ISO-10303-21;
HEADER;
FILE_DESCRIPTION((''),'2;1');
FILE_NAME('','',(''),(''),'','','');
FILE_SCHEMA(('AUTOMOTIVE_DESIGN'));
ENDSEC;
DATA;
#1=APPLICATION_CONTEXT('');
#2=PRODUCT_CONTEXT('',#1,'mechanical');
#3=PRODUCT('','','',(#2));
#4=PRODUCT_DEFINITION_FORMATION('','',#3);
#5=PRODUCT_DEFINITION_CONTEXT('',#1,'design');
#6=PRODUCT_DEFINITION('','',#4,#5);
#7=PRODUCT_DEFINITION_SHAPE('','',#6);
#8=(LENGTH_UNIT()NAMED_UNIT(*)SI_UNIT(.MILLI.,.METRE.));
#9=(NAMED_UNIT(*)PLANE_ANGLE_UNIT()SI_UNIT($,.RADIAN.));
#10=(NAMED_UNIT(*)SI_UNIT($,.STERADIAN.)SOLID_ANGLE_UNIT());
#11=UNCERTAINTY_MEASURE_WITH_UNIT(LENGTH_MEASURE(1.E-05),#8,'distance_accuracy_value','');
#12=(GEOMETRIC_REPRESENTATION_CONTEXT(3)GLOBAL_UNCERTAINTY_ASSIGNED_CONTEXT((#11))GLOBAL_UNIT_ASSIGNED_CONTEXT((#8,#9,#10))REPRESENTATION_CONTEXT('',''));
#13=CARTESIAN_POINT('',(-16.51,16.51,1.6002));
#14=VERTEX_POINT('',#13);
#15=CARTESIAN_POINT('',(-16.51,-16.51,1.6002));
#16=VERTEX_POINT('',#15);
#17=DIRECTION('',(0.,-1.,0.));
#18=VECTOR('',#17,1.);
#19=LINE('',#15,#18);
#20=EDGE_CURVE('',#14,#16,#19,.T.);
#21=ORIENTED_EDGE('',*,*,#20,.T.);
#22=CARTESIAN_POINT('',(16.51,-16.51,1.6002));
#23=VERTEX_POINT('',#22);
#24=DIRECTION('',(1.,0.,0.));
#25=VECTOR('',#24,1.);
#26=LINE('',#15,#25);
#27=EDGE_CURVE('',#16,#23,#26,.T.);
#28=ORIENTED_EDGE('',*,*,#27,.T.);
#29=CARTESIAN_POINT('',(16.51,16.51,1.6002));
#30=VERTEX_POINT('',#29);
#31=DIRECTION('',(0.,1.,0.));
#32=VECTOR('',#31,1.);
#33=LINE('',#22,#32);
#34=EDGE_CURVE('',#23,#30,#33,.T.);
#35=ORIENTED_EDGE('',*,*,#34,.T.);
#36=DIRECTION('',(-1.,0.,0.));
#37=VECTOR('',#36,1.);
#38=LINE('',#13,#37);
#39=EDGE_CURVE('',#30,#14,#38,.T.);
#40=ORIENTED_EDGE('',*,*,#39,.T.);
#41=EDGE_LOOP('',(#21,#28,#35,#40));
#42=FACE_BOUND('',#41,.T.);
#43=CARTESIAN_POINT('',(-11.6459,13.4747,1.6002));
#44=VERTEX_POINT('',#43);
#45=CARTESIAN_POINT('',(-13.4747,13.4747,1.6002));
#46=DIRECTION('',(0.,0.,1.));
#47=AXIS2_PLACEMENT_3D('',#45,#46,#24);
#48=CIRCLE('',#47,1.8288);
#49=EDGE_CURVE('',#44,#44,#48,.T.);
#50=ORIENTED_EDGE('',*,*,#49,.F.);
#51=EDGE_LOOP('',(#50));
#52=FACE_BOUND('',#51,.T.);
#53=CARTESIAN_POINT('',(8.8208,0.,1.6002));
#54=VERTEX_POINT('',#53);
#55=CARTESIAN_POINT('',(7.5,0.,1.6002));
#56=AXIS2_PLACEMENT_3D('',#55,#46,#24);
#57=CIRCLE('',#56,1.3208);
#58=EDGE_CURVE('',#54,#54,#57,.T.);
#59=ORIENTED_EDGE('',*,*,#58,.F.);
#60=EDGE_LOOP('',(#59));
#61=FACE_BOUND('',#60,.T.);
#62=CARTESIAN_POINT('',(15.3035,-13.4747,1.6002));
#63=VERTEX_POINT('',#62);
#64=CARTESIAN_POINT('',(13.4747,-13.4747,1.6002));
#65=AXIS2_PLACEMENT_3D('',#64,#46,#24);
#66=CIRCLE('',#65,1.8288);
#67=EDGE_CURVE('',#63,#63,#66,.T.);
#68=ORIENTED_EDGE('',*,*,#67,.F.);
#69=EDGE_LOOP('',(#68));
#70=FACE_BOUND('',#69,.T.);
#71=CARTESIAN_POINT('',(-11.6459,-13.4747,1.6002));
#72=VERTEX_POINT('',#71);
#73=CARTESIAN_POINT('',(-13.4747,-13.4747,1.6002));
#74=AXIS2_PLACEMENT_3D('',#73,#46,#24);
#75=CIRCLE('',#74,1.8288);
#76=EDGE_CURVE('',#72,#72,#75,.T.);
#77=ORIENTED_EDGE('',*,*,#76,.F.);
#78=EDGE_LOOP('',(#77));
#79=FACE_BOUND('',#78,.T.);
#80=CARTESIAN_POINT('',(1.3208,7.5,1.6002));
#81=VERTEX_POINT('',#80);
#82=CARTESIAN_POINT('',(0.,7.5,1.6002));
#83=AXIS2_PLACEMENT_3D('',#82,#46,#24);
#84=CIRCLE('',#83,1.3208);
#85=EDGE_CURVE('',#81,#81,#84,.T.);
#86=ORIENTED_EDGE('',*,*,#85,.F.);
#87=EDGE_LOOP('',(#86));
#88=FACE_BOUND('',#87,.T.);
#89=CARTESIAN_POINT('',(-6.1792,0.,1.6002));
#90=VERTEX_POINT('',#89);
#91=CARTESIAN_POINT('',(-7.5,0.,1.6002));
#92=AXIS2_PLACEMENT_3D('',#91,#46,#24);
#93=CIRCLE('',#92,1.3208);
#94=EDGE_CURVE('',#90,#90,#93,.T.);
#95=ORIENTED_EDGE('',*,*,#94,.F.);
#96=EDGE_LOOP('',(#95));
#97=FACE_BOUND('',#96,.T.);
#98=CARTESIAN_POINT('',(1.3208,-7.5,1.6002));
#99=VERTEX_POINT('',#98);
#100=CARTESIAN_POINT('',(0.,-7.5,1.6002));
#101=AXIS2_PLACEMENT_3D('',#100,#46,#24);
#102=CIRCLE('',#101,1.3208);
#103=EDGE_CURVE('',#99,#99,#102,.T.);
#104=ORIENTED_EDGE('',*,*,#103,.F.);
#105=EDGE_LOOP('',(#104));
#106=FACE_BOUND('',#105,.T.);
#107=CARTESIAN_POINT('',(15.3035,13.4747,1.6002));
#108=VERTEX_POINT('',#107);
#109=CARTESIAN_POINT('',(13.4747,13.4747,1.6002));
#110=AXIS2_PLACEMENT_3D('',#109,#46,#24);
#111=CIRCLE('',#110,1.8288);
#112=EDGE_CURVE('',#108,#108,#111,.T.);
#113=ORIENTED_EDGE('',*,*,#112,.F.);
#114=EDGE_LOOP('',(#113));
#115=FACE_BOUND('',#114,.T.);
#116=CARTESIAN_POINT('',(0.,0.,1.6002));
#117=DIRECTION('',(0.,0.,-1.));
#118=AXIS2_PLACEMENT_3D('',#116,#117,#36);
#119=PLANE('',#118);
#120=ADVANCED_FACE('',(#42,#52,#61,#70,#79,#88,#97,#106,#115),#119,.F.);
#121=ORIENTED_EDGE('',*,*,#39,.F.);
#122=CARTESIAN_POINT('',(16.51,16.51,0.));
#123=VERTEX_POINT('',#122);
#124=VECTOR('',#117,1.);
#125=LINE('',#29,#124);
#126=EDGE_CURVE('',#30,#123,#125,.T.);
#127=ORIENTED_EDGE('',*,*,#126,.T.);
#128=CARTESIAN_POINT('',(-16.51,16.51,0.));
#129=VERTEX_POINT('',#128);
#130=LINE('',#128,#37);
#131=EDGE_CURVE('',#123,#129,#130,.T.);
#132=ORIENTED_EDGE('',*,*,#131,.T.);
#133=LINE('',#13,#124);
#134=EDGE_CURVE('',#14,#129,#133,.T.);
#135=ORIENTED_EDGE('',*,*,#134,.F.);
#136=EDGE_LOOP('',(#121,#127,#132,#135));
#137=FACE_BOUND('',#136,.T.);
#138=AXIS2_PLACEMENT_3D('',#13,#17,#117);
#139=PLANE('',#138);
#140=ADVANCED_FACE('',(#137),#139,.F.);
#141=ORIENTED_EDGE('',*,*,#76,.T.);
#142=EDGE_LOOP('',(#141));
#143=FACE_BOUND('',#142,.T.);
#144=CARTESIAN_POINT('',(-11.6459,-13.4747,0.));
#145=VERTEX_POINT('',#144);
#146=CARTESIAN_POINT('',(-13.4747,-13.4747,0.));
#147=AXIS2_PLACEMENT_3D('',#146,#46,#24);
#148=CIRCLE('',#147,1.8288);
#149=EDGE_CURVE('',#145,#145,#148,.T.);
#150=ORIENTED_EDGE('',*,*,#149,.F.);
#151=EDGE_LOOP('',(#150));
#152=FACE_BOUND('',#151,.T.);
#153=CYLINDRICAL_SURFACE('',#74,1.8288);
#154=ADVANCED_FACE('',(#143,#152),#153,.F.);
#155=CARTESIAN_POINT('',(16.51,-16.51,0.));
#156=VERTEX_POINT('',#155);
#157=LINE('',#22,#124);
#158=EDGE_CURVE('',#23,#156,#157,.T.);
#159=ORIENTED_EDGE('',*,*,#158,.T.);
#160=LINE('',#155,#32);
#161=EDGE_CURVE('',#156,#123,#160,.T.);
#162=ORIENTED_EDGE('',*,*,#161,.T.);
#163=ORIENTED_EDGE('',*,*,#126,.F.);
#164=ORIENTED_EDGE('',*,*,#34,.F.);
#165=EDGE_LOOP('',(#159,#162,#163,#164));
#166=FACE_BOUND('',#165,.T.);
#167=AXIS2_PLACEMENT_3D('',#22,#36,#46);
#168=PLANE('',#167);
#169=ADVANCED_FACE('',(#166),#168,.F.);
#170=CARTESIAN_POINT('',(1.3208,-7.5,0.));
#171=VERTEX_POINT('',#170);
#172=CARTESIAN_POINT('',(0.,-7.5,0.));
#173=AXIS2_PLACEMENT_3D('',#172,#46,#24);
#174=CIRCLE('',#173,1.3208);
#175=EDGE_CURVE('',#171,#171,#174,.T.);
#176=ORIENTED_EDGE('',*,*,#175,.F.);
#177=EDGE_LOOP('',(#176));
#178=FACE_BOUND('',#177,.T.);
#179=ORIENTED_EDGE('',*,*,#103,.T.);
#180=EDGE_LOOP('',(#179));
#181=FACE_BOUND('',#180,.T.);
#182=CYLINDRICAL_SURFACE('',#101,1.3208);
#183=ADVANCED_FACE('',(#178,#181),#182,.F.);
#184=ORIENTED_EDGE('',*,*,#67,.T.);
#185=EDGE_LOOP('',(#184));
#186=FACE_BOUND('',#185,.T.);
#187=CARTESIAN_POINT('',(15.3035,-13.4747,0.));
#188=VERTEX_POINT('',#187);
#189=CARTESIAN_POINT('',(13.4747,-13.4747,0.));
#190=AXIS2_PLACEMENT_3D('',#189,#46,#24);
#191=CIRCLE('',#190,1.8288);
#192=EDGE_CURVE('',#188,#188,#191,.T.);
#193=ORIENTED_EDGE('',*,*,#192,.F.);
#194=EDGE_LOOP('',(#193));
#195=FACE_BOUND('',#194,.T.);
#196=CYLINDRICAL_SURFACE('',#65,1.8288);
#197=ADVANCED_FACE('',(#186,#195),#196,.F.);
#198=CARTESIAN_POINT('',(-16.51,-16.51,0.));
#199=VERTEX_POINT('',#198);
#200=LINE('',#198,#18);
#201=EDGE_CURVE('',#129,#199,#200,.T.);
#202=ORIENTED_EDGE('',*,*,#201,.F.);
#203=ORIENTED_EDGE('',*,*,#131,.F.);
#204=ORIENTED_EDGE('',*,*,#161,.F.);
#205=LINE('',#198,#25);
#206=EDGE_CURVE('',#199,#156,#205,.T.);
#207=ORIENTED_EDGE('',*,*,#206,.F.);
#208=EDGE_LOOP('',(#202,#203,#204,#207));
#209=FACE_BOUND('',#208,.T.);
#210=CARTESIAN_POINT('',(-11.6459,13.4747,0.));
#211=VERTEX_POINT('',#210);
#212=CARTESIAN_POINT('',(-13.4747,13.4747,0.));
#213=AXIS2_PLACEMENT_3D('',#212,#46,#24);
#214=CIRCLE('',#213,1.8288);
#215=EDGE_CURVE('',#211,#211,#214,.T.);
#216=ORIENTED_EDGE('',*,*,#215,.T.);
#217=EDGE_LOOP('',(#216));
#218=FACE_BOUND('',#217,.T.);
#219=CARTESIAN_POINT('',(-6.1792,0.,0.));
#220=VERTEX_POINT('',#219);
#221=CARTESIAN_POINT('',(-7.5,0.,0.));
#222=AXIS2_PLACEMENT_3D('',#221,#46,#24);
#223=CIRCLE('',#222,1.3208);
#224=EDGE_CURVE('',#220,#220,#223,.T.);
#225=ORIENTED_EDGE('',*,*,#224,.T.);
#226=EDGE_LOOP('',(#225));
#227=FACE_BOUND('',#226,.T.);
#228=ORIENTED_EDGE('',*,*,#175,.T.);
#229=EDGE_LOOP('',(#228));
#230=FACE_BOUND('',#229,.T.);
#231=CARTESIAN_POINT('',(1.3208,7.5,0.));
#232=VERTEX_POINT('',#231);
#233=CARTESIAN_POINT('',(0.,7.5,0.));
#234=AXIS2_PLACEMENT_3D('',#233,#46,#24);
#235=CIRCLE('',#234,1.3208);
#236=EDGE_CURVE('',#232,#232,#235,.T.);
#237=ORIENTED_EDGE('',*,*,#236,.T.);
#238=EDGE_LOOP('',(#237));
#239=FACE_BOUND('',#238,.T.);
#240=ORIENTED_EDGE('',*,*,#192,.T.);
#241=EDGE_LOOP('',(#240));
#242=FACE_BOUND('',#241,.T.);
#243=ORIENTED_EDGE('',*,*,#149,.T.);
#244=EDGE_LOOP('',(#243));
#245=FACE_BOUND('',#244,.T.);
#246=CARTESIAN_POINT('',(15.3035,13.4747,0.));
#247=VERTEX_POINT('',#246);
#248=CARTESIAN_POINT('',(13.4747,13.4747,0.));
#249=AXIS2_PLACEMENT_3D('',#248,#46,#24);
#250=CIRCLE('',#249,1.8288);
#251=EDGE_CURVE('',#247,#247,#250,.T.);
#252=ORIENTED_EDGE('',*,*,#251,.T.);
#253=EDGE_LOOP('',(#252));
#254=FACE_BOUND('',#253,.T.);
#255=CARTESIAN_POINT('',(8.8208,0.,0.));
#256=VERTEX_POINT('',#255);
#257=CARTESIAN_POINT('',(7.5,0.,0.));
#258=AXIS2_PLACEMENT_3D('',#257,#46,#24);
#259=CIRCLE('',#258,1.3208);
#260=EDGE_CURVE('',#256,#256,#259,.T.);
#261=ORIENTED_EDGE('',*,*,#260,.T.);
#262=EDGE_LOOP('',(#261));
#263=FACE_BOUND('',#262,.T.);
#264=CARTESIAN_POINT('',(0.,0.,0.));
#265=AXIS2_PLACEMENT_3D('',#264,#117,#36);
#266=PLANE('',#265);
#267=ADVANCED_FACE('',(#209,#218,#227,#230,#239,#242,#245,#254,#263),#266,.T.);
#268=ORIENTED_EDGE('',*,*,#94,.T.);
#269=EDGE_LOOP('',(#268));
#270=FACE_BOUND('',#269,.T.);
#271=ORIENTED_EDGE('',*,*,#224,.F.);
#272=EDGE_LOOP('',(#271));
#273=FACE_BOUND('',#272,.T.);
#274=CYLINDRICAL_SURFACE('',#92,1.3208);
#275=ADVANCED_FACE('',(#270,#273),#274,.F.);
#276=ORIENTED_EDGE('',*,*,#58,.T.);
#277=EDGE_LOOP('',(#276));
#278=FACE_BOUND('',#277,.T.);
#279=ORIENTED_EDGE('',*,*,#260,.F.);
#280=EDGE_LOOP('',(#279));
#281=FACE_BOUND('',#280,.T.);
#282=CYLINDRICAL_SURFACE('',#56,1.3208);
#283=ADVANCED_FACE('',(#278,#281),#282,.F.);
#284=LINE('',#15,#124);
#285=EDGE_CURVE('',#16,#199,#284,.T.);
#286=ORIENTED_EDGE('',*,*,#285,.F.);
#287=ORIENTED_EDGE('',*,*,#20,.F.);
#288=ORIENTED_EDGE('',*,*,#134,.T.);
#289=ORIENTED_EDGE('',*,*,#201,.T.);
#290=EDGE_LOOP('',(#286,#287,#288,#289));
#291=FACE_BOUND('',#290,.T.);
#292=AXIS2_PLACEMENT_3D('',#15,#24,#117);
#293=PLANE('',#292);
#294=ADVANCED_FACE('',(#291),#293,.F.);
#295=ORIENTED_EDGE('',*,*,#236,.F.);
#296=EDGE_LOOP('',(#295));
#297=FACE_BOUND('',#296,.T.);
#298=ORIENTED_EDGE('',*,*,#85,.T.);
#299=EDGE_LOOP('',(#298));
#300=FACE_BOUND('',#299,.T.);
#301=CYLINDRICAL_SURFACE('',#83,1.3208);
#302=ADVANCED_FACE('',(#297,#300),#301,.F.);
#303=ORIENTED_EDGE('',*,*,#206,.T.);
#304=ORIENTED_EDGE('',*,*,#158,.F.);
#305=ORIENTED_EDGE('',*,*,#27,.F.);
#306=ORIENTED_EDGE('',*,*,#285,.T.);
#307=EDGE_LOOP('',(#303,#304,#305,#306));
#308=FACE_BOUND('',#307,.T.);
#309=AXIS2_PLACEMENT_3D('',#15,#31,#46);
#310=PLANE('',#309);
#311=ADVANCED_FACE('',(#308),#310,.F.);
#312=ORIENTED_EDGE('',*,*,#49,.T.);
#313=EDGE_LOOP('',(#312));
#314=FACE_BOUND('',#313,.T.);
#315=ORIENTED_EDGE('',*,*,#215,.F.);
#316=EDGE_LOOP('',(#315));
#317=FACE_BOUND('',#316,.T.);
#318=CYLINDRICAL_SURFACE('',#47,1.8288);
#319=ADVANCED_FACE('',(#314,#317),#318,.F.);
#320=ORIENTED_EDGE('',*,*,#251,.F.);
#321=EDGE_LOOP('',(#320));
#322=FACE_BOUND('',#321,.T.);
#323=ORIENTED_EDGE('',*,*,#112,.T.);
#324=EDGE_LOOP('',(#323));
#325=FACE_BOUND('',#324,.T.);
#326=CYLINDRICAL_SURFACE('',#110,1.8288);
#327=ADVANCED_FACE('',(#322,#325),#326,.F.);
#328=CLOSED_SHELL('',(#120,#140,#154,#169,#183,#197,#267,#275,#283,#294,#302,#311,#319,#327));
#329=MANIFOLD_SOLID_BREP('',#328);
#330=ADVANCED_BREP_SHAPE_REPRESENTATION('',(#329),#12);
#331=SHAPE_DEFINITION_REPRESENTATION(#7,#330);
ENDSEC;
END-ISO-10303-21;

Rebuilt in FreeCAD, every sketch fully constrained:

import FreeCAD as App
import Part
import Sketcher
Q = App.Units.Quantity


def add_polygon(sketch, points):
    """Adds a closed chain of lines whose ends are joined by coincident constraints."""
    first, n = sketch.GeometryCount, len(points)
    for a, b in zip(points, points[1:] + points[:1]):
        sketch.addGeometry(Part.LineSegment(App.Vector(*a, 0), App.Vector(*b, 0)), False)
    for i in range(n):
        sketch.addConstraint(Sketcher.Constraint("Coincident", first + i, 2, first + (i + 1) % n, 1))

doc = App.newDocument("Part")
params = doc.addObject("Spreadsheet::Sheet", "Params")
for row, (alias, value) in enumerate([
    ("sketch1_width", "1.3 in"),
    ("pad1_length", "0.063 in"),
    ("sketch2_diameter", "0.144 in"),
    ("hole_diameter", "0.144 in"),
    ("sketch3_diameter", "0.104 in"),
    ("hole2_diameter", "0.104 in"),
], start=1):
    params.set(f"A{row}", alias)
    params.set(f"B{row}", "=" + value)
    params.setAlias(f"B{row}", alias)

body = doc.addObject("PartDesign::Body", "Body")

sketch1 = doc.addObject("Sketcher::SketchObject", "Sketch")
body.addObject(sketch1)
sketch1.AttachmentSupport = (doc.XY_Plane, [""])
sketch1.MapMode = "FlatFace"
add_polygon(sketch1, [(-17, 17), (-17, -17), (17, -17), (17, 17)])
sketch1.addConstraint([
    Sketcher.Constraint("Vertical", 0),
    Sketcher.Constraint("Horizontal", 1),
    Sketcher.Constraint("Vertical", 2),
    Sketcher.Constraint("Horizontal", 3),
    Sketcher.Constraint("Symmetric", 0, 2, 2, 2, -1, 1),
    Sketcher.Constraint("Equal", 3, 0),
    Sketcher.Constraint("DistanceX", 1, 1, 1, 2, Q("1.3 in")),
])
sketch1.setExpression("Constraints[10]", "Params.sketch1_width")
pad1 = doc.addObject("PartDesign::Pad", "Pad")
body.addObject(pad1)
pad1.Profile = sketch1
pad1.setExpression("Length", "Params.pad1_length")

sketch2 = doc.addObject("Sketcher::SketchObject", "Sketch001")
body.addObject(sketch2)
sketch2.AttachmentSupport = (doc.XY_Plane, [""])
sketch2.MapMode = "FlatFace"
sketch2.AttachmentOffset = App.Placement(App.Vector(0, 0, 0.063 * 25.4), App.Rotation())
sketch2.addGeometry([
    Part.Circle(App.Vector(-13.5, 13.5, 0), App.Vector(0, 0, 1), 1.8),
    Part.Circle(App.Vector(13.5, 13.5, 0), App.Vector(0, 0, 1), 1.8),
    Part.Circle(App.Vector(13.5, -13.5, 0), App.Vector(0, 0, 1), 1.8),
    Part.Circle(App.Vector(-13.5, -13.5, 0), App.Vector(0, 0, 1), 1.8),
], False)
sketch2.addConstraint([
    Sketcher.Constraint("Equal", 0, 1),
    Sketcher.Constraint("Equal", 1, 2),
    Sketcher.Constraint("Equal", 2, 3),
    Sketcher.Constraint("Symmetric", 0, 3, 2, 3, -1, 1),
    Sketcher.Constraint("Symmetric", 1, 3, 3, 3, -1, 1),
    Sketcher.Constraint("Symmetric", 0, 3, 1, 3, -2),
    Sketcher.Constraint("Diameter", 0, Q("0.144 in")),
    Sketcher.Constraint("DistanceX", 0, 3, 1, 3, Q("1.061 in")),
    Sketcher.Constraint("DistanceY", 2, 3, 1, 3, Q("1.061 in")),
])
sketch2.setExpression("Constraints[6]", "Params.sketch2_diameter")
doc.recompute()
hole = doc.addObject("PartDesign::Hole", "Hole")
body.addObject(hole)
hole.Profile = sketch2
hole.ThreadType = "None"
hole.setExpression("Diameter", "Params.hole_diameter")
hole.DepthType = "ThroughAll"

sketch3 = doc.addObject("Sketcher::SketchObject", "Sketch002")
body.addObject(sketch3)
sketch3.AttachmentSupport = (doc.XY_Plane, [""])
sketch3.MapMode = "FlatFace"
sketch3.AttachmentOffset = App.Placement(App.Vector(0, 0, 0.063 * 25.4), App.Rotation())
sketch3.addGeometry([
    Part.Circle(App.Vector(0, 7.5, 0), App.Vector(0, 0, 1), 1.3),
    Part.Circle(App.Vector(7.5, 0, 0), App.Vector(0, 0, 1), 1.3),
    Part.Circle(App.Vector(0, -7.5, 0), App.Vector(0, 0, 1), 1.3),
    Part.Circle(App.Vector(-7.5, 0, 0), App.Vector(0, 0, 1), 1.3),
], False)
sketch3.addConstraint([
    Sketcher.Constraint("Equal", 0, 1),
    Sketcher.Constraint("Equal", 1, 2),
    Sketcher.Constraint("Equal", 2, 3),
    Sketcher.Constraint("Symmetric", 0, 3, 2, 3, -1, 1),
    Sketcher.Constraint("Symmetric", 1, 3, 3, 3, -1, 1),
    Sketcher.Constraint("PointOnObject", 0, 3, -2),
    Sketcher.Constraint("PointOnObject", 1, 3, -1),
    Sketcher.Constraint("Diameter", 0, Q("0.104 in")),
    Sketcher.Constraint("DistanceY", -1, 1, 0, 3, 7.5),
    Sketcher.Constraint("DistanceX", -1, 1, 1, 3, 7.5),
])
sketch3.setExpression("Constraints[7]", "Params.sketch3_diameter")
doc.recompute()
hole2 = doc.addObject("PartDesign::Hole", "Hole001")
body.addObject(hole2)
hole2.Profile = sketch3
hole2.ThreadType = "None"
hole2.setExpression("Diameter", "Params.hole2_diameter")
hole2.DepthType = "ThroughAll"

doc.recompute()
